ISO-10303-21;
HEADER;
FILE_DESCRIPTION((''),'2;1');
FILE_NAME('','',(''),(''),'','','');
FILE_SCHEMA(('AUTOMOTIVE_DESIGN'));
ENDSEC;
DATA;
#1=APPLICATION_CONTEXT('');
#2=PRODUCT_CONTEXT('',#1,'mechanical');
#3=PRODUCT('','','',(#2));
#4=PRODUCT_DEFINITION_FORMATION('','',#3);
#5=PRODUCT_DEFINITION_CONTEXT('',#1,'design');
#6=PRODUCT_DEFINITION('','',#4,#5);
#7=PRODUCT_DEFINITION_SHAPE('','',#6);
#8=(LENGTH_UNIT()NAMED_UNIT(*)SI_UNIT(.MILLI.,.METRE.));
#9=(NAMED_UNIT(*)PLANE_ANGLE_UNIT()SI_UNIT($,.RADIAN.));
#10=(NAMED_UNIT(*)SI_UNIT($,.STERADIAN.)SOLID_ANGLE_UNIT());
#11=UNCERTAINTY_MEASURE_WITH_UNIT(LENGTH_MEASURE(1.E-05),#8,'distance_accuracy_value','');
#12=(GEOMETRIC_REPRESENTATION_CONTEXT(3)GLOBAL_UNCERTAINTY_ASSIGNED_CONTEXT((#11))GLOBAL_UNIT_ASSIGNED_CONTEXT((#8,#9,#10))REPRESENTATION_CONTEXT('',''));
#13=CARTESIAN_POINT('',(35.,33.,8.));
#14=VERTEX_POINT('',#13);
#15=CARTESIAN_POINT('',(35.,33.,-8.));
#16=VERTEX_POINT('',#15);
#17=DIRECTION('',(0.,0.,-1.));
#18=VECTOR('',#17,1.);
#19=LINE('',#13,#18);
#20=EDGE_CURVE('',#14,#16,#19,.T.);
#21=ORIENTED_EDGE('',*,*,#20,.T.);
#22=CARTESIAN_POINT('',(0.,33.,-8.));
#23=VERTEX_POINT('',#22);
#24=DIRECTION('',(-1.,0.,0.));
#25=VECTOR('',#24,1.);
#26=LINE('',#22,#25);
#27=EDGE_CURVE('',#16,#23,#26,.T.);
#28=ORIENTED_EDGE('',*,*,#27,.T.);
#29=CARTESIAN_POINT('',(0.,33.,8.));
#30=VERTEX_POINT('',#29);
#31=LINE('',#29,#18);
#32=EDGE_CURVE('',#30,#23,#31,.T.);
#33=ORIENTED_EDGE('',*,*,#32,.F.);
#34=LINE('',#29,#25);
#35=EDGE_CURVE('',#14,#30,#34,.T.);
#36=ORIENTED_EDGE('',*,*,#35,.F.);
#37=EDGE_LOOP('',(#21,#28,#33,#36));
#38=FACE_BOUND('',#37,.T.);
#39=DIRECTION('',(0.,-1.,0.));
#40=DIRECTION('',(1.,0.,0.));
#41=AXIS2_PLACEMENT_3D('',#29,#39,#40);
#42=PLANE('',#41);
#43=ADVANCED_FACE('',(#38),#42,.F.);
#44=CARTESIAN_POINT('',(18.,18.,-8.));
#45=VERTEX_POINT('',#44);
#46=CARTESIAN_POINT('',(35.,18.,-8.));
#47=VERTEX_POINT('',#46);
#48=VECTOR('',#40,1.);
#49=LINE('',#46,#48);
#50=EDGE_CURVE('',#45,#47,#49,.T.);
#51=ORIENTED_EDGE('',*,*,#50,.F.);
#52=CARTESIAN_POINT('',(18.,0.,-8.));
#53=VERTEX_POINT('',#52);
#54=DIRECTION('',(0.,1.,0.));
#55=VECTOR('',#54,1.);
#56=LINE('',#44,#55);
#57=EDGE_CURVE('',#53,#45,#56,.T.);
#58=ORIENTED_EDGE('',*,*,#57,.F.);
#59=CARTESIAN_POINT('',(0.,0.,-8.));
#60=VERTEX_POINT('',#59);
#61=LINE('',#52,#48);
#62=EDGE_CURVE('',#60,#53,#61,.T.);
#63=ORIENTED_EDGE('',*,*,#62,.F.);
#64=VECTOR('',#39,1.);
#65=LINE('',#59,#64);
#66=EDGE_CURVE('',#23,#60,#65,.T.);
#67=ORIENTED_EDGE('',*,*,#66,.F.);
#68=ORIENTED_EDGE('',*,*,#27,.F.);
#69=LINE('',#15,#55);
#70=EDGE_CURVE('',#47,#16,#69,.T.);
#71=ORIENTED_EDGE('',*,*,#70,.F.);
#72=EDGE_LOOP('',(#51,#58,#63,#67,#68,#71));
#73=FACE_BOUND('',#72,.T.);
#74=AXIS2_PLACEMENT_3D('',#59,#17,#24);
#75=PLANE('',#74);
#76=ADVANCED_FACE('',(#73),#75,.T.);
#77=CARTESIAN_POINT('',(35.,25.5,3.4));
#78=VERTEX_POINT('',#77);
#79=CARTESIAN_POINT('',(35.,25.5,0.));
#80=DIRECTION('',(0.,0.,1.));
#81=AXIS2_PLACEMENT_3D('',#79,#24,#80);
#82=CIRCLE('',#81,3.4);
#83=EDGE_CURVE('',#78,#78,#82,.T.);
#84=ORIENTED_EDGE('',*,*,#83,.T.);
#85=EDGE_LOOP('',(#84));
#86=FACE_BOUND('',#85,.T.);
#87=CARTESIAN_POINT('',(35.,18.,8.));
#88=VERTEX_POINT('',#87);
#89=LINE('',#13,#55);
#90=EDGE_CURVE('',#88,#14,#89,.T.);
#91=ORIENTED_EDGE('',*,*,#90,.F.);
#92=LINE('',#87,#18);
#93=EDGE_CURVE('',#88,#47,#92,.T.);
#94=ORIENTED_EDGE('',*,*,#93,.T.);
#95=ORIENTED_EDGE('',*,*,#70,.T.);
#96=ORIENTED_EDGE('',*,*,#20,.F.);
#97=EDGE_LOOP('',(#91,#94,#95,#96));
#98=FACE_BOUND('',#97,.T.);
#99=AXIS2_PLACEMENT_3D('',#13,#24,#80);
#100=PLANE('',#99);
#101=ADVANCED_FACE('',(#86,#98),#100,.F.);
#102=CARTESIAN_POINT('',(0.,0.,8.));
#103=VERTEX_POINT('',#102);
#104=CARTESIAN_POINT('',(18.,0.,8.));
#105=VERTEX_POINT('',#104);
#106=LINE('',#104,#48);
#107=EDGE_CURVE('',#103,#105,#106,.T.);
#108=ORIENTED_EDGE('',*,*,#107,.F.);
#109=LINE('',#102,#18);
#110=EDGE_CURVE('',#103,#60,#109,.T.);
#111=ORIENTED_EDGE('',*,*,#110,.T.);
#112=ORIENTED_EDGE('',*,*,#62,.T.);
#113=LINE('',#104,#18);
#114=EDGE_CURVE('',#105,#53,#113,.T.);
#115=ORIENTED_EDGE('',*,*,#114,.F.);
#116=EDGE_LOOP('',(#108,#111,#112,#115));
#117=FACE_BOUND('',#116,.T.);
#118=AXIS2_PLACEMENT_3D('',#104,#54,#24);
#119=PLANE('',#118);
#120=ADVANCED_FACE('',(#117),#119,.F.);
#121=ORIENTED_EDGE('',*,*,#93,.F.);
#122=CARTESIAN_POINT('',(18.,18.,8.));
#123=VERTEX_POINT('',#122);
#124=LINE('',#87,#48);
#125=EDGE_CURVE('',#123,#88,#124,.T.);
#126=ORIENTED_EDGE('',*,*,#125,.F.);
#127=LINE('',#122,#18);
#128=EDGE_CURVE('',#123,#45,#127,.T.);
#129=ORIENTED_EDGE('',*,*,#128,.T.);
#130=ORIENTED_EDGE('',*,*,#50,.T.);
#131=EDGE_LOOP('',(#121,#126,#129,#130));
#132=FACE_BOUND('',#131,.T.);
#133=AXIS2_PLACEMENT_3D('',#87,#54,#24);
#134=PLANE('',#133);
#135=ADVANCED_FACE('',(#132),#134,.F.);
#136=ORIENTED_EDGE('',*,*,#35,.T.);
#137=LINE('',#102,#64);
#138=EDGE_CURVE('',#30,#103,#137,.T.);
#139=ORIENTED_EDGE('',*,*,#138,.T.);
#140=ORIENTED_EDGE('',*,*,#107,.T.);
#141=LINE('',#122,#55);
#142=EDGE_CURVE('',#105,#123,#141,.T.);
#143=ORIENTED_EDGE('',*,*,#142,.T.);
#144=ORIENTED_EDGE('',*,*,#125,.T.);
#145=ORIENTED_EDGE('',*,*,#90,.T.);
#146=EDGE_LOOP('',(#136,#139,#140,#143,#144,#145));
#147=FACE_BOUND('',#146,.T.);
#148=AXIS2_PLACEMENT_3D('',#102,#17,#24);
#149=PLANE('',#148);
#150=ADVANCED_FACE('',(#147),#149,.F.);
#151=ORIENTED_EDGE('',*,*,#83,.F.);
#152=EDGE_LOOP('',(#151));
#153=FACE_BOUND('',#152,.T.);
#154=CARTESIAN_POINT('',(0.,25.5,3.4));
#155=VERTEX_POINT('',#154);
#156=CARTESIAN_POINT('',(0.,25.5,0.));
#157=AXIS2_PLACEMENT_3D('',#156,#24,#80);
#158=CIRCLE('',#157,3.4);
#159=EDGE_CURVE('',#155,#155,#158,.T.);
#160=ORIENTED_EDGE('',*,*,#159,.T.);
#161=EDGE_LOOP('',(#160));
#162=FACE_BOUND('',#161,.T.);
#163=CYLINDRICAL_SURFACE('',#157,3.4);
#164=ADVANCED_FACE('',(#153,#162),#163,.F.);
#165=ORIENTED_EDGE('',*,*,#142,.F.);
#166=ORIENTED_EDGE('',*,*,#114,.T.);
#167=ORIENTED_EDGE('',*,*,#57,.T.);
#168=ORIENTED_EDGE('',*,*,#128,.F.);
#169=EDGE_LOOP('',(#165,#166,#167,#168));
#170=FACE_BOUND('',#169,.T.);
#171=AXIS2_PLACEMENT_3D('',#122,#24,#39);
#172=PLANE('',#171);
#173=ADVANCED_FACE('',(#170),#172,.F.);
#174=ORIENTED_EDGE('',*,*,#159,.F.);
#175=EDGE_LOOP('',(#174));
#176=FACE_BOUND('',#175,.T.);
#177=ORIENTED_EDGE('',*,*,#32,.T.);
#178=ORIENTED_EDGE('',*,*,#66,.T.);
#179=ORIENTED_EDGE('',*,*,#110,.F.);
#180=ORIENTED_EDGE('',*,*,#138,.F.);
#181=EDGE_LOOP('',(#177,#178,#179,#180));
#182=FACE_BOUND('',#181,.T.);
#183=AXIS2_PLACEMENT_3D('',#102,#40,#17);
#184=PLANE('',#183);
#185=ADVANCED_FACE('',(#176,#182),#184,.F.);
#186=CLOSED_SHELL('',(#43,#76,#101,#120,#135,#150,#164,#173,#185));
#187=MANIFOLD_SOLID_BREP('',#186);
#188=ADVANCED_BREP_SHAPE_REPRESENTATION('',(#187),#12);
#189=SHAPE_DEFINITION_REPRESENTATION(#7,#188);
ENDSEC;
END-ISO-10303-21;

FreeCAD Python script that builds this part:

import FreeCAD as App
import Part
import Sketcher
from FreeCAD import Vector

doc = App.newDocument("Part")
params = doc.addObject("Spreadsheet::Sheet", "Params")
for row, (alias, value) in enumerate([
    ("sketch1_width", "18 mm"),
    ("sketch1_width2", "17 mm"),
    ("sketch1_height", "33 mm"),
    ("pad1_length", "16 mm"),
    ("sketch2_diameter", "6.8 mm"),
    ("hole_diameter", "6.8 mm"),
], start=1):
    params.set(f"A{row}", alias)
    params.set(f"B{row}", "=" + value)
    params.setAlias(f"B{row}", alias)

body = doc.addObject("PartDesign::Body", "Body")

sketch1 = body.newObject("Sketcher::SketchObject", "Sketch")
sketch1.AttachmentSupport = (doc.getObject("XY_Plane"), [""])
sketch1.MapMode = "FlatFace"
sketch1.addGeometry(Part.LineSegment(Vector(0, 33, 0), Vector(0, 0, 0)), False)
sketch1.addGeometry(Part.LineSegment(Vector(0, 0, 0), Vector(18, 0, 0)), False)
sketch1.addGeometry(Part.LineSegment(Vector(18, 0, 0), Vector(18, 18, 0)), False)
sketch1.addGeometry(Part.LineSegment(Vector(18, 18, 0), Vector(35, 18, 0)), False)
sketch1.addGeometry(Part.LineSegment(Vector(35, 18, 0), Vector(35, 33, 0)), False)
sketch1.addGeometry(Part.LineSegment(Vector(35, 33, 0), Vector(0, 33, 0)), False)
sketch1.addConstraint(Sketcher.Constraint("Coincident", 0, 2, 1, 1))
sketch1.addConstraint(Sketcher.Constraint("Coincident", 1, 2, 2, 1))
sketch1.addConstraint(Sketcher.Constraint("Coincident", 2, 2, 3, 1))
sketch1.addConstraint(Sketcher.Constraint("Coincident", 3, 2, 4, 1))
sketch1.addConstraint(Sketcher.Constraint("Coincident", 4, 2, 5, 1))
sketch1.addConstraint(Sketcher.Constraint("Coincident", 5, 2, 0, 1))
sketch1.addConstraint(Sketcher.Constraint("Vertical", 0))
sketch1.addConstraint(Sketcher.Constraint("Horizontal", 1))
sketch1.addConstraint(Sketcher.Constraint("Vertical", 2))
sketch1.addConstraint(Sketcher.Constraint("Horizontal", 3))
sketch1.addConstraint(Sketcher.Constraint("Vertical", 4))
sketch1.addConstraint(Sketcher.Constraint("Horizontal", 5))
sketch1.addConstraint(Sketcher.Constraint("Coincident", 0, 2, -1, 1))
sketch1.addConstraint(Sketcher.Constraint("Equal", 1, 2))
sketch1.addConstraint(Sketcher.Constraint("DistanceX", 1, 1, 1, 2, 18.0))
sketch1.addConstraint(Sketcher.Constraint("DistanceX", 3, 1, 3, 2, 17.0))
sketch1.addConstraint(Sketcher.Constraint("DistanceY", 0, 2, 0, 1, 33.0))
sketch1.setExpression("Constraints[14]", "Params.sketch1_width")
sketch1.setExpression("Constraints[15]", "Params.sketch1_width2")
sketch1.setExpression("Constraints[16]", "Params.sketch1_height")
pad1 = body.newObject("PartDesign::Pad", "Pad")
pad1.Profile = sketch1
pad1.setExpression("Length", "Params.pad1_length")
pad1.Midplane = True

sketch2 = body.newObject("Sketcher::SketchObject", "Sketch001")
sketch2.AttachmentSupport = (doc.getObject("YZ_Plane"), [""])
sketch2.MapMode = "FlatFace"
sketch2.addGeometry(Part.Circle(Vector(25.5, 0, 0), Vector(0, 0, 1), 3.4), False)
sketch2.addConstraint(Sketcher.Constraint("PointOnObject", 0, 3, -1))
sketch2.addConstraint(Sketcher.Constraint("Diameter", 0, 6.8))
sketch2.addConstraint(Sketcher.Constraint("DistanceX", -1, 1, 0, 3, 25.5))
sketch2.setExpression("Constraints[1]", "Params.sketch2_diameter")
doc.recompute()
hole = body.newObject("PartDesign::Hole", "Hole")
hole.Profile = sketch2
hole.ThreadType = "None"
hole.setExpression("Diameter", "Params.hole_diameter")
hole.DepthType = "ThroughAll"
hole.Reversed = True

doc.recompute()
